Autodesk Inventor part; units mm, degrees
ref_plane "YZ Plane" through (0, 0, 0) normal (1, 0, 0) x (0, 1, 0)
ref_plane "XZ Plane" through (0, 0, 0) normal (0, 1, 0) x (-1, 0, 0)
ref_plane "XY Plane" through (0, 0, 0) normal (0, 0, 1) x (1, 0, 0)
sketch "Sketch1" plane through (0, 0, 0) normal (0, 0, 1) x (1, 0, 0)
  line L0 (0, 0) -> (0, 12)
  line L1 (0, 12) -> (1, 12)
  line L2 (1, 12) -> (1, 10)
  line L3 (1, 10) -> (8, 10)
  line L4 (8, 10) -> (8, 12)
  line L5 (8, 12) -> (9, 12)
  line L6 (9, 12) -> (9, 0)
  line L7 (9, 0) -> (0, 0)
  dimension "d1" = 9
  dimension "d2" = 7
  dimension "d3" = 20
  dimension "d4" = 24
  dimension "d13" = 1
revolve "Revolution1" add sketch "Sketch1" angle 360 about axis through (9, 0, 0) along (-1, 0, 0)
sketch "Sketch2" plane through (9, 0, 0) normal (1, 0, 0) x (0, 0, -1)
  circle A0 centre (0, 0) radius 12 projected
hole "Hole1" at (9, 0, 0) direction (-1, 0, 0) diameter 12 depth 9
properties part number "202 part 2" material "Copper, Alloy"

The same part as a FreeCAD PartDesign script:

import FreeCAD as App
import Part
import Sketcher
from FreeCAD import Vector
Q = App.Units.Quantity

doc = App.newDocument("Part")
body = doc.addObject("PartDesign::Body", "Body")

# Sketch on XY plane
sketch1 = body.newObject("Sketcher::SketchObject", "Sketch")
sketch1.AttachmentSupport = (doc.getObject("XY_Plane"), [""])
sketch1.MapMode = "FlatFace"
sketch1.addGeometry([
    Part.LineSegment(Vector(0, 12, 0), Vector(0, 0, 0)),  # 0
    Part.LineSegment(Vector(0, 0, 0), Vector(9, 0, 0)),  # 1
    Part.LineSegment(Vector(9, 0, 0), Vector(9, 12, 0)),  # 2
    Part.LineSegment(Vector(9, 12, 0), Vector(8, 12, 0)),  # 3
    Part.LineSegment(Vector(8, 12, 0), Vector(8, 10, 0)),  # 4
    Part.LineSegment(Vector(8, 10, 0), Vector(1, 10, 0)),  # 5
    Part.LineSegment(Vector(1, 10, 0), Vector(1, 12, 0)),  # 6
    Part.LineSegment(Vector(1, 12, 0), Vector(0, 12, 0)),  # 7
], False)
sketch1.addConstraint([
    Sketcher.Constraint("Coincident", 0, 2, 1, 1),
    Sketcher.Constraint("Coincident", 1, 2, 2, 1),
    Sketcher.Constraint("Coincident", 2, 2, 3, 1),
    Sketcher.Constraint("Coincident", 3, 2, 4, 1),
    Sketcher.Constraint("Coincident", 4, 2, 5, 1),
    Sketcher.Constraint("Coincident", 5, 2, 6, 1),
    Sketcher.Constraint("Coincident", 6, 2, 7, 1),
    Sketcher.Constraint("Coincident", 7, 2, 0, 1),
    Sketcher.Constraint("Vertical", 0),
    Sketcher.Constraint("Horizontal", 1),
    Sketcher.Constraint("Vertical", 2),
    Sketcher.Constraint("Horizontal", 3),
    Sketcher.Constraint("Vertical", 4),
    Sketcher.Constraint("Horizontal", 5),
    Sketcher.Constraint("Vertical", 6),
    Sketcher.Constraint("Horizontal", 7),
    Sketcher.Constraint("Coincident", 0, 2, -1, 1),
    Sketcher.Constraint("Horizontal", 3, 2, 6, 2),
    Sketcher.Constraint("Equal", 3, 7),
    Sketcher.Constraint("DistanceX", 1, 1, 1, 2, Q("9 mm")),
    Sketcher.Constraint("DistanceX", 3, 2, 3, 1, Q("1 mm")),
    Sketcher.Constraint("DistanceY", 0, 2, 0, 1, Q("12 mm")),
    Sketcher.Constraint("DistanceY", 4, 2, 4, 1, Q("2 mm")),
])
revolution = body.newObject("PartDesign::Revolution", "Revolution")
revolution.Profile = sketch1
revolution.ReferenceAxis = (sketch1, ["H_Axis"])
revolution.Angle = 360

# Sketch on YZ plane
sketch2 = body.newObject("Sketcher::SketchObject", "Sketch001")
sketch2.AttachmentSupport = (doc.getObject("YZ_Plane"), [""])
sketch2.MapMode = "FlatFace"
sketch2.AttachmentOffset = App.Placement(Vector(0, 0, 9), App.Rotation())
sketch2.addGeometry(Part.Circle(Vector(0, 0, 0), Vector(0, 0, 1), 6), False)
sketch2.addConstraint([
    Sketcher.Constraint("Coincident", 0, 3, -1, 1),
    Sketcher.Constraint("Diameter", 0, Q("12 mm")),
])
doc.recompute()
hole = body.newObject("PartDesign::Hole", "Hole")
hole.Profile = sketch2
hole.ThreadType = "None"
hole.Diameter = 12
hole.DepthType = "Dimension"
hole.Depth = 9
hole.DrillPoint = "Flat"

doc.recompute()
